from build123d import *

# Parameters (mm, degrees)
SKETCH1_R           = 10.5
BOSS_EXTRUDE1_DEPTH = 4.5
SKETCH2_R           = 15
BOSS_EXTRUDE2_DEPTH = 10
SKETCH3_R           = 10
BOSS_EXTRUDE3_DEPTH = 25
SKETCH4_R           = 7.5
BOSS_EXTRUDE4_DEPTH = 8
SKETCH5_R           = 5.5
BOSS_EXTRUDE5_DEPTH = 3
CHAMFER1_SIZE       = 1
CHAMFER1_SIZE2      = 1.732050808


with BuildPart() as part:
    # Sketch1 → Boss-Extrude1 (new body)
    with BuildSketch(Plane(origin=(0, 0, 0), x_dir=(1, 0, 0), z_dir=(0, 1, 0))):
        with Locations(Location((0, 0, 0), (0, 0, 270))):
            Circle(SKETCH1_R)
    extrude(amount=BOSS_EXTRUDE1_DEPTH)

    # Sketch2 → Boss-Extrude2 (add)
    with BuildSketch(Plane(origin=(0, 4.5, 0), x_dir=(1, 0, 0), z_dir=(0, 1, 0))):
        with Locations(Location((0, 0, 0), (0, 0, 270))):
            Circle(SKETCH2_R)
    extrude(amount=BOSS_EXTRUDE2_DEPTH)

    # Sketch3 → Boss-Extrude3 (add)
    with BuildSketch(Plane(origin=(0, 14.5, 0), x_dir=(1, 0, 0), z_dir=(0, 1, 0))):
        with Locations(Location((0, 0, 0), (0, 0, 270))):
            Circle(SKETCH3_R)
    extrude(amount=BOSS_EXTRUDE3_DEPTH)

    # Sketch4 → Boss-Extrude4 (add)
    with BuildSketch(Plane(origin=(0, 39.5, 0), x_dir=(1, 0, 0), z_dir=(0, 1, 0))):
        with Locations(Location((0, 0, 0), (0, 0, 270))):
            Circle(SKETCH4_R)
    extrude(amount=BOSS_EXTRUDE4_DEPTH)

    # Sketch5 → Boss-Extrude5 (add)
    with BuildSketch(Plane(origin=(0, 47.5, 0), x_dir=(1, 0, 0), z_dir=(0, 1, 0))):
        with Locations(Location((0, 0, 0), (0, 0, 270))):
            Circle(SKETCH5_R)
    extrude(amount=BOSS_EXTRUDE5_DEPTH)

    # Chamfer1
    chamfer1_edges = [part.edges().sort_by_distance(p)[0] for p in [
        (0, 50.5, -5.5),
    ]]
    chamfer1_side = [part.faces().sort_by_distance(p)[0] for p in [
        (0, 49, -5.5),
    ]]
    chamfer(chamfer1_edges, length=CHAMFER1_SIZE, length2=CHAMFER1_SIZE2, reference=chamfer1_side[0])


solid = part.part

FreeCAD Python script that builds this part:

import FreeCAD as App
import Part
import Sketcher

V = App.Vector


def edges_at(feature, points):
    """Names of the edges that pass closest to the given points."""
    edges = feature.Shape.Edges
    near = lambda p: min(range(len(edges)), key=lambda i: edges[i].distToShape(Part.Vertex(*p))[0])
    return sorted({f"Edge{near(p) + 1}" for p in points})

doc = App.newDocument("Part")
body = doc.addObject("PartDesign::Body", "Body")

# Sketch on XZ plane
sketch1 = body.newObject("Sketcher::SketchObject", "Sketch")
sketch1.AttachmentSupport = (doc.getObject("XZ_Plane"), [""])
sketch1.MapMode = "FlatFace"
sketch1.addGeometry(Part.Circle(V(0, 0, 0), V(0, 0, 1), 10), False)
sketch1.addConstraint(Sketcher.Constraint("Coincident", 0, 3, -1, 1))
sketch1.addConstraint(Sketcher.Constraint("Diameter", 0, 21.0))
pad1 = body.newObject("PartDesign::Pad", "Pad")
pad1.Profile = sketch1
pad1.Length = 4.5
pad1.Reversed = True

# Sketch on XZ plane
sketch2 = body.newObject("Sketcher::SketchObject", "Sketch001")
sketch2.AttachmentSupport = (doc.getObject("XZ_Plane"), [""])
sketch2.MapMode = "FlatFace"
sketch2.AttachmentOffset = App.Placement(V(0, 0, -4.5), App.Rotation())
sketch2.addGeometry(Part.Circle(V(0, 0, 0), V(0, 0, 1), 15), False)
sketch2.addConstraint(Sketcher.Constraint("Coincident", 0, 3, -1, 1))
sketch2.addConstraint(Sketcher.Constraint("Diameter", 0, 30.0))
pad2 = body.newObject("PartDesign::Pad", "Pad001")
pad2.Profile = sketch2
pad2.Length = 10
pad2.Reversed = True

# Sketch on XZ plane
sketch3 = body.newObject("Sketcher::SketchObject", "Sketch002")
sketch3.AttachmentSupport = (doc.getObject("XZ_Plane"), [""])
sketch3.MapMode = "FlatFace"
sketch3.AttachmentOffset = App.Placement(V(0, 0, -14.5), App.Rotation())
sketch3.addGeometry(Part.Circle(V(0, 0, 0), V(0, 0, 1), 10), False)
sketch3.addConstraint(Sketcher.Constraint("Coincident", 0, 3, -1, 1))
sketch3.addConstraint(Sketcher.Constraint("Diameter", 0, 20.0))
pad3 = body.newObject("PartDesign::Pad", "Pad002")
pad3.Profile = sketch3
pad3.Length = 25
pad3.Reversed = True

# Sketch on XZ plane
sketch4 = body.newObject("Sketcher::SketchObject", "Sketch003")
sketch4.AttachmentSupport = (doc.getObject("XZ_Plane"), [""])
sketch4.MapMode = "FlatFace"
sketch4.AttachmentOffset = App.Placement(V(0, 0, -39.5), App.Rotation())
sketch4.addGeometry(Part.Circle(V(0, 0, 0), V(0, 0, 1), 8), False)
sketch4.addConstraint(Sketcher.Constraint("Coincident", 0, 3, -1, 1))
sketch4.addConstraint(Sketcher.Constraint("Diameter", 0, 15.0))
pad4 = body.newObject("PartDesign::Pad", "Pad003")
pad4.Profile = sketch4
pad4.Length = 8
pad4.Reversed = True

# Sketch on XZ plane
sketch5 = body.newObject("Sketcher::SketchObject", "Sketch004")
sketch5.AttachmentSupport = (doc.getObject("XZ_Plane"), [""])
sketch5.MapMode = "FlatFace"
sketch5.AttachmentOffset = App.Placement(V(0, 0, -47.5), App.Rotation())
sketch5.addGeometry(Part.Circle(V(0, 0, 0), V(0, 0, 1), 6), False)
sketch5.addConstraint(Sketcher.Constraint("Coincident", 0, 3, -1, 1))
sketch5.addConstraint(Sketcher.Constraint("Diameter", 0, 11.0))
pad5 = body.newObject("PartDesign::Pad", "Pad004")
pad5.Profile = sketch5
pad5.Length = 3
pad5.Reversed = True
doc.recompute()

chamfer = body.newObject("PartDesign::Chamfer", "Chamfer")
chamfer.Base = (pad5, edges_at(pad5, [(0, 50.5, -5.5)]))
chamfer.ChamferType = "Two distances"
chamfer.Size = 1
chamfer.Size2 = 1.732051

doc.recompute()
